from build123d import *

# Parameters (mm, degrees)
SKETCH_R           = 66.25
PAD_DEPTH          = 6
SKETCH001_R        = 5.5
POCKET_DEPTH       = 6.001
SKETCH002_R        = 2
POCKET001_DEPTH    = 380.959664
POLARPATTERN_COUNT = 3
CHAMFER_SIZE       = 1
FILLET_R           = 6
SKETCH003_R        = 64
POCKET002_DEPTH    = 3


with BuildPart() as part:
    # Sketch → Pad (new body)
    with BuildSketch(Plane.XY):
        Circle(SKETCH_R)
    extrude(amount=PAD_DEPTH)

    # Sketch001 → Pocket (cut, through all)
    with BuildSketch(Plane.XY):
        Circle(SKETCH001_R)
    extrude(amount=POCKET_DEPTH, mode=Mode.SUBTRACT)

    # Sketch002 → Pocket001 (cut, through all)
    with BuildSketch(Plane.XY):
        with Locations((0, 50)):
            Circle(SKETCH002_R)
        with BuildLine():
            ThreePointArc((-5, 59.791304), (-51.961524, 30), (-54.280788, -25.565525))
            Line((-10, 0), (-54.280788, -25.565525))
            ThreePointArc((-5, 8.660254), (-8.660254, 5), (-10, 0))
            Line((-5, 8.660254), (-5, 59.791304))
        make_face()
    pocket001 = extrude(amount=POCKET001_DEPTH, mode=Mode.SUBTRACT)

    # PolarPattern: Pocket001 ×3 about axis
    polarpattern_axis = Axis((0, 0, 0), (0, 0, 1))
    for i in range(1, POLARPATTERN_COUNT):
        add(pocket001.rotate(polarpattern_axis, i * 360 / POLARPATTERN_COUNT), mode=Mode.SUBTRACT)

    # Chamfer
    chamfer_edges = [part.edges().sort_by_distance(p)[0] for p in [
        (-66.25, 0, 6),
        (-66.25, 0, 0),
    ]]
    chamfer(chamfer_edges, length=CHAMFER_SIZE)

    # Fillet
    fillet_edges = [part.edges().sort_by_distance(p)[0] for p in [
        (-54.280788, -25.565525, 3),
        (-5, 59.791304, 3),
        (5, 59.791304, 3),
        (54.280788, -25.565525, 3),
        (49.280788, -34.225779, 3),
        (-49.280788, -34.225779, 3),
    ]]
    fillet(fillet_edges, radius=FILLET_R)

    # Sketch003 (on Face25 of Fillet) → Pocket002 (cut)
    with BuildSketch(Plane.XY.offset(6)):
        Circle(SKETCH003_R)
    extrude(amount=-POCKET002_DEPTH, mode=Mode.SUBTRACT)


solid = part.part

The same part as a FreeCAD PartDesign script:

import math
import FreeCAD as App
import Part
import Sketcher
Q = App.Units.Quantity


def edges_at(feature, points):
    """Names of the edges that pass closest to the given points."""
    edges = feature.Shape.Edges
    near = lambda p: min(range(len(edges)), key=lambda i: edges[i].distToShape(Part.Vertex(*p))[0])
    return sorted({f"Edge{near(p) + 1}" for p in points})

doc = App.newDocument("Part")
body = doc.addObject("PartDesign::Body", "Body")

# Sketch on XY plane
sketch1 = body.newObject("Sketcher::SketchObject", "Sketch")
sketch1.AttachmentSupport = (doc.getObject("XY_Plane"), [""])
sketch1.MapMode = "FlatFace"
sketch1.addGeometry(Part.Circle(App.Vector(0, 0, 0), App.Vector(0, 0, 1), 66), False)
sketch1.addConstraint([
    Sketcher.Constraint("Coincident", 0, 3, -1, 1),
    Sketcher.Constraint("Diameter", 0, 132.5),
])
pad1 = body.newObject("PartDesign::Pad", "Pad")
pad1.Profile = sketch1
pad1.Length = 6

# Sketch on XY plane
sketch2 = body.newObject("Sketcher::SketchObject", "Sketch001")
sketch2.AttachmentSupport = (doc.getObject("XY_Plane"), [""])
sketch2.MapMode = "FlatFace"
sketch2.addGeometry(Part.Circle(App.Vector(0, 0, 0), App.Vector(0, 0, 1), 6), False)
sketch2.addConstraint([
    Sketcher.Constraint("Coincident", 0, 3, -1, 1),
    Sketcher.Constraint("Diameter", 0, 11.0),
])
pocket1 = body.newObject("PartDesign::Pocket", "Pocket")
pocket1.Profile = sketch2
pocket1.Type = "ThroughAll"
pocket1.Reversed = True

# Sketch on XY plane
sketch3 = body.newObject("Sketcher::SketchObject", "Sketch002")
sketch3.AttachmentSupport = (doc.getObject("XY_Plane"), [""])
sketch3.MapMode = "FlatFace"
sketch3.addGeometry([
    Part.Circle(App.Vector(0, 50, 0), App.Vector(0, 0, 1), 2),  # 0
    Part.ArcOfCircle(Part.Circle(App.Vector(0, 0, 0), App.Vector(0, 0, 1), 60), math.radians(95), math.radians(205)),  # 1
    Part.LineSegment(App.Vector(-54.3, -25.6, 0), App.Vector(-10, 0, 0)),  # 2
    Part.ArcOfCircle(Part.Circle(App.Vector(0, 0, 0), App.Vector(0, 0, 1), 10), math.radians(120), math.radians(180)),  # 3
    Part.LineSegment(App.Vector(-5, 8.7, 0), App.Vector(-5, 59.8, 0)),  # 4
], False)
sketch3.addConstraint([
    Sketcher.Constraint("Coincident", 1, 2, 2, 1),
    Sketcher.Constraint("Coincident", 2, 2, 3, 2),
    Sketcher.Constraint("Coincident", 3, 1, 4, 1),
    Sketcher.Constraint("Coincident", 4, 2, 1, 1),
    Sketcher.Constraint("Vertical", 4),
    Sketcher.Constraint("Coincident", 1, 3, -1, 1),
    Sketcher.Constraint("Coincident", 3, 3, -1, 1),
    Sketcher.Constraint("PointOnObject", 0, 3, -2),
    Sketcher.Constraint("PointOnObject", 2, 2, -1),
    Sketcher.Constraint("Diameter", 0, 4.0),
    Sketcher.Constraint("Radius", 1, 60.000001),
    Sketcher.Constraint("Radius", 3, 10.0),
    Sketcher.Constraint("Angle", 2, Q("30 deg")),
    Sketcher.Constraint("DistanceY", -1, 1, 0, 3, 50.0),
    Sketcher.Constraint("DistanceX", 3, 1, -1, 1, 5.0),
])
pocket2 = body.newObject("PartDesign::Pocket", "Pocket001")
pocket2.Profile = sketch3
pocket2.Type = "ThroughAll"
pocket2.Reversed = True
doc.recompute()

polarpattern = body.newObject("PartDesign::PolarPattern", "PolarPattern")
polarpattern.Originals = [pocket2]
polarpattern.Axis = (doc.getObject("Z_Axis"), [""])
polarpattern.Angle = 360
polarpattern.Occurrences = 3
body.Tip = polarpattern
doc.recompute()

chamfer = body.newObject("PartDesign::Chamfer", "Chamfer")
chamfer.Base = (polarpattern, edges_at(polarpattern, [(-66.25, 0, 6), (-66.25, 0, 0)]))
chamfer.Size = 1
doc.recompute()

fillet = body.newObject("PartDesign::Fillet", "Fillet")
fillet.Base = (chamfer, edges_at(chamfer, [
    (-54.281, -25.566, 3),
    (-5, 59.791, 3),
    (5, 59.791, 3),
    (54.281, -25.566, 3),
    (49.281, -34.226, 3),
    (-49.281, -34.226, 3),
]))
fillet.Radius = 6

# Sketch on XY plane
sketch4 = body.newObject("Sketcher::SketchObject", "Sketch003")
sketch4.AttachmentSupport = (doc.getObject("XY_Plane"), [""])
sketch4.MapMode = "FlatFace"
sketch4.AttachmentOffset = App.Placement(App.Vector(0, 0, 6), App.Rotation())
sketch4.addGeometry(Part.Circle(App.Vector(0, 0, 0), App.Vector(0, 0, 1), 64), False)
sketch4.addConstraint([
    Sketcher.Constraint("Coincident", 0, 3, -1, 1),
    Sketcher.Constraint("Diameter", 0, 128.0),
])
pocket3 = body.newObject("PartDesign::Pocket", "Pocket002")
pocket3.Profile = sketch4
pocket3.Length = 3

doc.recompute()
